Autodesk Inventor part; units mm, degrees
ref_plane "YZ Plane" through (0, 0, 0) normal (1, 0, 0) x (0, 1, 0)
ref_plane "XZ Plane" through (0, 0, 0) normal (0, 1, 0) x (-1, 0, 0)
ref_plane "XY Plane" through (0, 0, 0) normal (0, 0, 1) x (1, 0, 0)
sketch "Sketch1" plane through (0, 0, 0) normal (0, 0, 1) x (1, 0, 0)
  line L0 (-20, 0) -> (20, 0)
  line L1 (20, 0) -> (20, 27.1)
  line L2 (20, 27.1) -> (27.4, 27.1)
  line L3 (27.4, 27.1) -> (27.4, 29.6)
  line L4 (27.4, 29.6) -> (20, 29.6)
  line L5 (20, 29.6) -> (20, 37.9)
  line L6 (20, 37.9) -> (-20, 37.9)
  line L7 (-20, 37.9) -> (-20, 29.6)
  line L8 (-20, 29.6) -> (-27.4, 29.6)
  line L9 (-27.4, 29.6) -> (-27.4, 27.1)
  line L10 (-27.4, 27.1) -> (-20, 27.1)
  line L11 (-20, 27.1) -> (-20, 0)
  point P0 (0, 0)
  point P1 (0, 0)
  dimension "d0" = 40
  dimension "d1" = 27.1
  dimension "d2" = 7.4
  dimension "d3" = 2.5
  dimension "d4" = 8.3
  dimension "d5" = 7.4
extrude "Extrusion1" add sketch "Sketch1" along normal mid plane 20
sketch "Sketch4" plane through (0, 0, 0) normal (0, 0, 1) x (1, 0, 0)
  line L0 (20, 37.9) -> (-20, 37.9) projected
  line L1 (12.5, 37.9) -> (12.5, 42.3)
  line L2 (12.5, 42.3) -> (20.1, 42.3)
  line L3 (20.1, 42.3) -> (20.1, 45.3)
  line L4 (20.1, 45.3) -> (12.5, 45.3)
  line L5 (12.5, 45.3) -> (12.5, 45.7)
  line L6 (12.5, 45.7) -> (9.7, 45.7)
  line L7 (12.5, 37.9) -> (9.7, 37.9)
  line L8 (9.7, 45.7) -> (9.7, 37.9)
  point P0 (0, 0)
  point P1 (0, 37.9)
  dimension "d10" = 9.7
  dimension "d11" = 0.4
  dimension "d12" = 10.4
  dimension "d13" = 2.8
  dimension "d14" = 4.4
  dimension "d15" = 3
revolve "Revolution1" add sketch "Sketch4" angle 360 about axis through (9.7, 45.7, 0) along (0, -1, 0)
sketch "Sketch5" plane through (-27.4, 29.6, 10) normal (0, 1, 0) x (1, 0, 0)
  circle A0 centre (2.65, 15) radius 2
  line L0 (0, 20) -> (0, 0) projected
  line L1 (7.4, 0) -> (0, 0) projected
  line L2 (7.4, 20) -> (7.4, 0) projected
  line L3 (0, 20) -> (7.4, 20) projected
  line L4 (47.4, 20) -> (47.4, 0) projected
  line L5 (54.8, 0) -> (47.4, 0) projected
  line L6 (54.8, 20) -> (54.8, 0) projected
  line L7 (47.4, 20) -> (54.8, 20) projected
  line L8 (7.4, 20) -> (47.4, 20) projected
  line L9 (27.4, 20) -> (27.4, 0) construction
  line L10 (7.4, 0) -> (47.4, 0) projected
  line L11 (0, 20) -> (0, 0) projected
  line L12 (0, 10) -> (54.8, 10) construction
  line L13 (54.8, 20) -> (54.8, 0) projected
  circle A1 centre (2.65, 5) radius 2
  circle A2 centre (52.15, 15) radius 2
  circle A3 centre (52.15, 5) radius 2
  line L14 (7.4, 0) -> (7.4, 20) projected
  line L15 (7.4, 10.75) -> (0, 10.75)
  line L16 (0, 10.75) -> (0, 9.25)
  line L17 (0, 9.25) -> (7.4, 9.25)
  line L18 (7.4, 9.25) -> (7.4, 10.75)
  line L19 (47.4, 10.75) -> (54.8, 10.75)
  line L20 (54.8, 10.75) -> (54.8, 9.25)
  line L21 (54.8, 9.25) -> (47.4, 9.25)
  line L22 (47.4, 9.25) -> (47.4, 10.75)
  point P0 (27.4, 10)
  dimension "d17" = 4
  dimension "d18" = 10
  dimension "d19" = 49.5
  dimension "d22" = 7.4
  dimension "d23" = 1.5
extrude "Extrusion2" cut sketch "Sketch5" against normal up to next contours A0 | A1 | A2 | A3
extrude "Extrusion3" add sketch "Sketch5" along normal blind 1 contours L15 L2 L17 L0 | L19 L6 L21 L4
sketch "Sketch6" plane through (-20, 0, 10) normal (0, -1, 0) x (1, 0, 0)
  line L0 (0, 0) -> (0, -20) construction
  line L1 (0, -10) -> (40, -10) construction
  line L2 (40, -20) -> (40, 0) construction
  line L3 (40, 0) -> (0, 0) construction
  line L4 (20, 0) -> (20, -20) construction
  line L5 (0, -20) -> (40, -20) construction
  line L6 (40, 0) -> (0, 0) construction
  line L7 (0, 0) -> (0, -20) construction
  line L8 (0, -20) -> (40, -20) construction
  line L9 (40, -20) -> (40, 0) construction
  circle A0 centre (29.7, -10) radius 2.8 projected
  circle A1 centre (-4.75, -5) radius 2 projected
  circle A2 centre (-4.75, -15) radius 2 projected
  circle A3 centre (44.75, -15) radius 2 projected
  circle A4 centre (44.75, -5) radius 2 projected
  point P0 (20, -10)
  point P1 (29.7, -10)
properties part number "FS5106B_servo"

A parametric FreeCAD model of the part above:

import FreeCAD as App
import Part
import Sketcher
from FreeCAD import Vector


def add_polygon(sketch, points):
    """Adds a closed chain of lines whose ends are joined by coincident constraints."""
    first, n = sketch.GeometryCount, len(points)
    for a, b in zip(points, points[1:] + points[:1]):
        sketch.addGeometry(Part.LineSegment(App.Vector(*a, 0), App.Vector(*b, 0)), False)
    for i in range(n):
        sketch.addConstraint(Sketcher.Constraint("Coincident", first + i, 2, first + (i + 1) % n, 1))

doc = App.newDocument("Part")
body = doc.addObject("PartDesign::Body", "Body")

# Sketch on XY plane
sketch1 = body.newObject("Sketcher::SketchObject", "Sketch")
sketch1.AttachmentSupport = (doc.getObject("XY_Plane"), [""])
sketch1.MapMode = "FlatFace"
add_polygon(sketch1, [(-20, 27.1), (-20, 0), (20, 0), (20, 27.1), (27.4, 27.1), (27.4, 29.6), (20, 29.6), (20, 37.9), (-20, 37.9), (-20, 29.6), (-27.4, 29.6), (-27.4, 27.1)])  # lines 0-11
sketch1.addConstraint([
    Sketcher.Constraint("Vertical", 0),
    Sketcher.Constraint("Horizontal", 1),
    Sketcher.Constraint("Vertical", 2),
    Sketcher.Constraint("Horizontal", 3),
    Sketcher.Constraint("Vertical", 4),
    Sketcher.Constraint("Horizontal", 5),
    Sketcher.Constraint("Vertical", 6),
    Sketcher.Constraint("Horizontal", 7),
    Sketcher.Constraint("Vertical", 8),
    Sketcher.Constraint("Horizontal", 9),
    Sketcher.Constraint("Vertical", 10),
    Sketcher.Constraint("Horizontal", 11),
    Sketcher.Constraint("Symmetric", 0, 2, 1, 2, -1, 1),
    Sketcher.Constraint("Symmetric", 5, 2, 8, 2, -2),
    Sketcher.Constraint("Symmetric", 3, 2, 10, 2, -2),
    Sketcher.Constraint("Vertical", 2, 2, 5, 2),
    Sketcher.Constraint("DistanceX", 1, 1, 1, 2, 40.0),
    Sketcher.Constraint("DistanceX", 3, 1, 3, 2, 7.4),
    Sketcher.Constraint("DistanceY", 0, 2, 0, 1, 27.1),
    Sketcher.Constraint("DistanceY", 4, 1, 4, 2, 2.5),
    Sketcher.Constraint("DistanceY", 6, 1, 6, 2, 8.3),
])
pad1 = body.newObject("PartDesign::Pad", "Pad")
pad1.Profile = sketch1
pad1.Length = 20
pad1.Midplane = True

# Sketch on XY plane
sketch2 = body.newObject("Sketcher::SketchObject", "Sketch001")
sketch2.AttachmentSupport = (doc.getObject("XY_Plane"), [""])
sketch2.MapMode = "FlatFace"
add_polygon(sketch2, [(9.7, 37.9), (12.5, 37.9), (12.5, 42.3), (20.1, 42.3), (20.1, 45.3), (12.5, 45.3), (12.5, 45.7), (9.7, 45.7)])  # lines 0-7
sketch2.addGeometry(Part.LineSegment(Vector(9.7, 45.7, 0), Vector(9.7, 37.9, 0)), True)  # axis
sketch2.addConstraint([
    Sketcher.Constraint("Horizontal", 0),
    Sketcher.Constraint("Vertical", 1),
    Sketcher.Constraint("Horizontal", 2),
    Sketcher.Constraint("Vertical", 3),
    Sketcher.Constraint("Horizontal", 4),
    Sketcher.Constraint("Vertical", 5),
    Sketcher.Constraint("Horizontal", 6),
    Sketcher.Constraint("Vertical", 7),
    Sketcher.Constraint("Vertical", 8),
    Sketcher.Constraint("Coincident", 8, 1, 6, 2),
    Sketcher.Constraint("Horizontal", 0, 2, 8, 2),
    Sketcher.Constraint("Vertical", 1, 2, 4, 2),
    Sketcher.Constraint("DistanceY", 3, 1, 3, 2, 3.0),
    Sketcher.Constraint("DistanceX", 0, 1, 0, 2, 2.8),
    Sketcher.Constraint("DistanceY", 1, 1, 1, 2, 4.4),
    Sketcher.Constraint("DistanceY", 5, 1, 5, 2, 0.4),
    Sketcher.Constraint("DistanceX", -1, 1, 6, 2, 9.7),
    Sketcher.Constraint("DistanceX", 6, 2, 3, 2, 10.4),
    Sketcher.Constraint("DistanceY", -1, 1, 0, 2, 37.9),
])
revolution = body.newObject("PartDesign::Revolution", "Revolution")
revolution.Profile = sketch2
revolution.ReferenceAxis = (sketch2, ["Axis0"])
revolution.Angle = 360

# Sketch on XZ plane
sketch3 = body.newObject("Sketcher::SketchObject", "Sketch002")
sketch3.AttachmentSupport = (doc.getObject("XZ_Plane"), [""])
sketch3.MapMode = "FlatFace"
sketch3.AttachmentOffset = App.Placement(Vector(0, 0, -29.6), App.Rotation())
sketch3.addGeometry([
    Part.Circle(Vector(-24.8, -5, 0), Vector(0, 0, 1), 2),
    Part.Circle(Vector(-24.8, 5, 0), Vector(0, 0, 1), 2),
    Part.Circle(Vector(24.8, -5, 0), Vector(0, 0, 1), 2),
    Part.Circle(Vector(24.8, 5, 0), Vector(0, 0, 1), 2),
], False)
sketch3.addConstraint([
    Sketcher.Constraint("Equal", 0, 1),
    Sketcher.Constraint("Equal", 1, 2),
    Sketcher.Constraint("Equal", 2, 3),
    Sketcher.Constraint("Symmetric", 1, 3, 2, 3, -1, 1),
    Sketcher.Constraint("Symmetric", 0, 3, 3, 3, -1, 1),
    Sketcher.Constraint("Symmetric", 0, 3, 2, 3, -2),
    Sketcher.Constraint("Diameter", 0, 4.0),
    Sketcher.Constraint("DistanceY", 0, 3, 1, 3, 10.0),
    Sketcher.Constraint("DistanceX", 0, 3, 2, 3, 49.5),
])
pocket1 = body.newObject("PartDesign::Pocket", "Pocket")
pocket1.Profile = sketch3
pocket1.Type = "UpToFirst"
pocket1.Reversed = True

# Sketch on XZ plane
sketch4 = body.newObject("Sketcher::SketchObject", "Sketch003")
sketch4.AttachmentSupport = (doc.getObject("XZ_Plane"), [""])
sketch4.MapMode = "FlatFace"
sketch4.AttachmentOffset = App.Placement(Vector(0, 0, -29.6), App.Rotation())
add_polygon(sketch4, [(-20, -0.8), (-27.4, -0.8), (-27.4, 0.8), (-20, 0.8)])  # lines 0-3
add_polygon(sketch4, [(27.4, -0.8), (20, -0.8), (20, 0.8), (27.4, 0.8)])  # lines 4-7
sketch4.addConstraint([
    Sketcher.Constraint("Horizontal", 0),
    Sketcher.Constraint("Vertical", 1),
    Sketcher.Constraint("Horizontal", 2),
    Sketcher.Constraint("Vertical", 3),
    Sketcher.Constraint("Horizontal", 4),
    Sketcher.Constraint("Vertical", 5),
    Sketcher.Constraint("Horizontal", 6),
    Sketcher.Constraint("Vertical", 7),
    Sketcher.Constraint("Symmetric", 2, 2, 4, 2, -1, 1),
    Sketcher.Constraint("Symmetric", 0, 2, 6, 2, -1, 1),
    Sketcher.Constraint("Horizontal", 3, 2, 4, 2),
    Sketcher.Constraint("DistanceX", 0, 2, 0, 1, 7.4),
    Sketcher.Constraint("DistanceY", 1, 1, 1, 2, 1.5),
    Sketcher.Constraint("DistanceX", 2, 2, -1, 1, 20.0),
])
pad2 = body.newObject("PartDesign::Pad", "Pad001")
pad2.Profile = sketch4
pad2.Length = 1
pad2.Reversed = True

doc.recompute()
